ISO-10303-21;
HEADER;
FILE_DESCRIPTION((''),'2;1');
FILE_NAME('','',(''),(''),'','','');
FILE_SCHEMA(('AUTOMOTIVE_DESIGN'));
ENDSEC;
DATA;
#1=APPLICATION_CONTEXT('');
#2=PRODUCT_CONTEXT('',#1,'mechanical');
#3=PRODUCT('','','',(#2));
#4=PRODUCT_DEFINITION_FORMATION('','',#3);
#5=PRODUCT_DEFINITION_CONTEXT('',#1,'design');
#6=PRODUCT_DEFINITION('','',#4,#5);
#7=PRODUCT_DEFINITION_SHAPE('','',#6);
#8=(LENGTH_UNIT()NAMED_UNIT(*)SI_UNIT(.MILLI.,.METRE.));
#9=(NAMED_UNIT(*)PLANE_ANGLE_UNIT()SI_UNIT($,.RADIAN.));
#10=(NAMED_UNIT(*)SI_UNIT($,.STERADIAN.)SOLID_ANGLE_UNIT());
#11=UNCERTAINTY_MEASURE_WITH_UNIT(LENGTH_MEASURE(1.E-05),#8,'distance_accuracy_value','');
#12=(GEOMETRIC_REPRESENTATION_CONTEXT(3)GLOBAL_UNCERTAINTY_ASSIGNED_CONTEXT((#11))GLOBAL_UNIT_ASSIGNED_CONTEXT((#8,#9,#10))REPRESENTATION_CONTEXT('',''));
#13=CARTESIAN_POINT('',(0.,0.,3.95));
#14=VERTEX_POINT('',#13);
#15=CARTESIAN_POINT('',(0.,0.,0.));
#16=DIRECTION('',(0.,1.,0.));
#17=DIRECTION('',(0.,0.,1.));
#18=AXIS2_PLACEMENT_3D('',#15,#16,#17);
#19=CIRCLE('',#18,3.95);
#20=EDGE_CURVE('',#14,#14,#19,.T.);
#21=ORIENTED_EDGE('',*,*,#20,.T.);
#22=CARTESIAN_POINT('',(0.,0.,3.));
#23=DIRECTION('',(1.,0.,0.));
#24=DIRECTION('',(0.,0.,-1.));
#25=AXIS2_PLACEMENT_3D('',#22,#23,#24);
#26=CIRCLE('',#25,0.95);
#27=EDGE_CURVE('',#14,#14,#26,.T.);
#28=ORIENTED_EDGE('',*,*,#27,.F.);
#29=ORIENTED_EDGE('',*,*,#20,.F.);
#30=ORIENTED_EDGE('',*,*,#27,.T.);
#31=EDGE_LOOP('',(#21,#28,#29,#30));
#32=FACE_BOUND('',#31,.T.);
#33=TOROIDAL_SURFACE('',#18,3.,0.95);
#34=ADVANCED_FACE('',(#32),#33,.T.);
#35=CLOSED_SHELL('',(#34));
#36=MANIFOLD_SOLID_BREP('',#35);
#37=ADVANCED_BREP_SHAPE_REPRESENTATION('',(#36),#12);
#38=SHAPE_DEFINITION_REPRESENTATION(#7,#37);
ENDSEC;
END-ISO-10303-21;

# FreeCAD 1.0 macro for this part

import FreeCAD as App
import Part
import Sketcher
Q = App.Units.Quantity

doc = App.newDocument("Part")
body = doc.addObject("PartDesign::Body", "Body")

# Sketch on XY plane
sketch1 = body.newObject("Sketcher::SketchObject", "Sketch")
sketch1.AttachmentSupport = (doc.getObject("XY_Plane"), [""])
sketch1.MapMode = "FlatFace"
sketch1.addGeometry(Part.Circle(App.Vector(3, 0, 0), App.Vector(0, 0, 1), 0.9), False)
sketch1.addConstraint([
    Sketcher.Constraint("PointOnObject", 0, 3, -1),
    Sketcher.Constraint("Diameter", 0, Q("1.9 mm")),
    Sketcher.Constraint("DistanceX", -1, 1, 0, 3, Q("3 mm")),
])

# Sketch on XZ plane
sketch2 = body.newObject("Sketcher::SketchObject", "Sketch001")
sketch2.AttachmentSupport = (doc.getObject("XZ_Plane"), [""])
sketch2.MapMode = "FlatFace"
sketch2.addGeometry(Part.Circle(App.Vector(0, 0, 0), App.Vector(0, 0, 1), 3), False)
sketch2.addConstraint([
    Sketcher.Constraint("Coincident", 0, 3, -1, 1),
    Sketcher.Constraint("Diameter", 0, Q("6 mm")),
])
doc.recompute()

additivepipe = body.newObject("PartDesign::AdditivePipe", "AdditivePipe")
additivepipe.Profile = sketch1
additivepipe.Spine = (sketch2, ["Edge1"])

doc.recompute()
